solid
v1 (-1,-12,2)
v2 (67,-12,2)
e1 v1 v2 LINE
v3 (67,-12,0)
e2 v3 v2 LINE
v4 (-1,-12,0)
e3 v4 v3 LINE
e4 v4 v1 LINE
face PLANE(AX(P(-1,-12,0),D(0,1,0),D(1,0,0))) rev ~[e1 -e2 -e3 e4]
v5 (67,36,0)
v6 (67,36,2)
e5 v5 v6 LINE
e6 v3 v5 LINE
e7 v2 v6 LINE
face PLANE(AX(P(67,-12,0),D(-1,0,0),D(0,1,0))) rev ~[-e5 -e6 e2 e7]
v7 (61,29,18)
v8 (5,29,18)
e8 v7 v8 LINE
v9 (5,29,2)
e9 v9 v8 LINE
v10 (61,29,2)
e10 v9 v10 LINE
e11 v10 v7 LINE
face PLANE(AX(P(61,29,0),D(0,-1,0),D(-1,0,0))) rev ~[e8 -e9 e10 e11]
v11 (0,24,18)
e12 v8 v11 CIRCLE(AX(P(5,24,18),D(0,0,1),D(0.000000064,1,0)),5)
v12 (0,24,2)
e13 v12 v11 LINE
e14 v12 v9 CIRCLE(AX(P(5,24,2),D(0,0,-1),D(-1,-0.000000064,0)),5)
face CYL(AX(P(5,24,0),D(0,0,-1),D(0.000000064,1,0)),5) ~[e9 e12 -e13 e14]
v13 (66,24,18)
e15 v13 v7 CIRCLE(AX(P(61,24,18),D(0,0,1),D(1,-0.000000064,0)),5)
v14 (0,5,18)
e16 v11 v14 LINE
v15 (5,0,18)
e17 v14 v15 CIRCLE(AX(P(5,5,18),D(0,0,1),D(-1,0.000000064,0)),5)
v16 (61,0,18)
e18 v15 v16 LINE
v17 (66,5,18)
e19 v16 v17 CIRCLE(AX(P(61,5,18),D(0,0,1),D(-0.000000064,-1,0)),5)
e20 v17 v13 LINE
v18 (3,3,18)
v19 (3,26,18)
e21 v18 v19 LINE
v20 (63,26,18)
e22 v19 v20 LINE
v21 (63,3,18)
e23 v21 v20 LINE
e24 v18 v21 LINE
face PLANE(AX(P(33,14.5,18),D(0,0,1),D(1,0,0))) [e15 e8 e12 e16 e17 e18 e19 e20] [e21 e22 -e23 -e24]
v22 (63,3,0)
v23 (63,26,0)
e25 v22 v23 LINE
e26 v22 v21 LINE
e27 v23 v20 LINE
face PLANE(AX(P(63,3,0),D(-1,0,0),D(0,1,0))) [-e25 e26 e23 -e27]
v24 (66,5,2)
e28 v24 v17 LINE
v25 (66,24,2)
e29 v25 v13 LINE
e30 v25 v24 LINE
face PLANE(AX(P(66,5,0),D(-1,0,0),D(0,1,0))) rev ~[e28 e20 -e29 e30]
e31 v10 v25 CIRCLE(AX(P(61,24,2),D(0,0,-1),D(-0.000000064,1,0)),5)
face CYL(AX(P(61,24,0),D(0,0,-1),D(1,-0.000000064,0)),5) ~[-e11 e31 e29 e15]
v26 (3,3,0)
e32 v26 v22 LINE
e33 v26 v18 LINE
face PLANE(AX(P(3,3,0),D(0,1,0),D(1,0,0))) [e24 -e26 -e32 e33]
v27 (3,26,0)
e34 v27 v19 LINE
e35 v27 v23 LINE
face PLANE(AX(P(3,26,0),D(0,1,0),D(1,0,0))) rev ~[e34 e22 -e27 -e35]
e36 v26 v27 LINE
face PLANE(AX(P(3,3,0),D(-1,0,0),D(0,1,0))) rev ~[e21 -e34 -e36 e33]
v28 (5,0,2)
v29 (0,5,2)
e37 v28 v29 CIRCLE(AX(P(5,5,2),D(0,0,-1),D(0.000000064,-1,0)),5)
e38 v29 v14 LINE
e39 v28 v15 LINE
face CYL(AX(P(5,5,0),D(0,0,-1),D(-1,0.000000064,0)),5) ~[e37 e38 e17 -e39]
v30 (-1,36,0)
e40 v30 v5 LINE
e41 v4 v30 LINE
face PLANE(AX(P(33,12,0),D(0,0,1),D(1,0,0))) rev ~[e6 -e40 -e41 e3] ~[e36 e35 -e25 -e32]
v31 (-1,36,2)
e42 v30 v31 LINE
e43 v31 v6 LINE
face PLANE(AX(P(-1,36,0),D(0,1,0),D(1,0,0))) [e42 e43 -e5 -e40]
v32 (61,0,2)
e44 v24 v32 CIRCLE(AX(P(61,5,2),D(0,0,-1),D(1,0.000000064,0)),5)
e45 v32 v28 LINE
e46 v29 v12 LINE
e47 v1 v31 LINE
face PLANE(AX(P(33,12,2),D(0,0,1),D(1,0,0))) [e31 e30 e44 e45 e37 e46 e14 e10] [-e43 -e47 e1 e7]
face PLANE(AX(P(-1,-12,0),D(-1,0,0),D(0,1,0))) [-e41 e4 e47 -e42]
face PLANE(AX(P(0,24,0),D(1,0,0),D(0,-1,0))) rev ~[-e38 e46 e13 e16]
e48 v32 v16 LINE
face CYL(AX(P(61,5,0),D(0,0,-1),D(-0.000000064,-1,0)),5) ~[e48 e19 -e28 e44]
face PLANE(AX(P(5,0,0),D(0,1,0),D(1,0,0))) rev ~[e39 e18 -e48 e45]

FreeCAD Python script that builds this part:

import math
import FreeCAD as App
import Part
import Sketcher

doc = App.newDocument("Part")
body = doc.addObject("PartDesign::Body", "Body")

# Sketch on XY plane
sketch1 = body.newObject("Sketcher::SketchObject", "Sketch")
sketch1.AttachmentSupport = (doc.getObject("XY_Plane"), [""])
sketch1.MapMode = "FlatFace"
sketch1.addGeometry(Part.LineSegment(App.Vector(-1, 36, 0), App.Vector(-1, -12, 0)), False)
sketch1.addGeometry(Part.LineSegment(App.Vector(-1, -12, 0), App.Vector(67, -12, 0)), False)
sketch1.addGeometry(Part.LineSegment(App.Vector(67, -12, 0), App.Vector(67, 36, 0)), False)
sketch1.addGeometry(Part.LineSegment(App.Vector(67, 36, 0), App.Vector(-1, 36, 0)), False)
sketch1.addGeometry(Part.ArcOfCircle(Part.Circle(App.Vector(61, 5, 0), App.Vector(0, 0, 1), 5), math.radians(-90), math.radians(0)), False)
sketch1.addGeometry(Part.LineSegment(App.Vector(61, 0, 0), App.Vector(5, 0, 0)), False)
sketch1.addGeometry(Part.ArcOfCircle(Part.Circle(App.Vector(5, 5, 0), App.Vector(0, 0, 1), 5), math.radians(180), math.radians(270)), False)
sketch1.addGeometry(Part.LineSegment(App.Vector(0, 5, 0), App.Vector(0, 24, 0)), False)
sketch1.addGeometry(Part.ArcOfCircle(Part.Circle(App.Vector(5, 24, 0), App.Vector(0, 0, 1), 5), math.radians(90), math.radians(180)), False)
sketch1.addGeometry(Part.LineSegment(App.Vector(5, 29, 0), App.Vector(61, 29, 0)), False)
sketch1.addGeometry(Part.ArcOfCircle(Part.Circle(App.Vector(61, 24, 0), App.Vector(0, 0, 1), 5), math.radians(0), math.radians(90)), False)
sketch1.addGeometry(Part.LineSegment(App.Vector(66, 24, 0), App.Vector(66, 5, 0)), False)
sketch1.addConstraint(Sketcher.Constraint("Coincident", 0, 2, 1, 1))
sketch1.addConstraint(Sketcher.Constraint("Coincident", 1, 2, 2, 1))
sketch1.addConstraint(Sketcher.Constraint("Coincident", 2, 2, 3, 1))
sketch1.addConstraint(Sketcher.Constraint("Coincident", 3, 2, 0, 1))
sketch1.addConstraint(Sketcher.Constraint("Tangent", 4, 1, 5, 1))
sketch1.addConstraint(Sketcher.Constraint("Tangent", 5, 2, 6, 2))
sketch1.addConstraint(Sketcher.Constraint("Tangent", 6, 1, 7, 1))
sketch1.addConstraint(Sketcher.Constraint("Tangent", 7, 2, 8, 2))
sketch1.addConstraint(Sketcher.Constraint("Tangent", 8, 1, 9, 1))
sketch1.addConstraint(Sketcher.Constraint("Tangent", 9, 2, 10, 2))
sketch1.addConstraint(Sketcher.Constraint("Tangent", 10, 1, 11, 1))
sketch1.addConstraint(Sketcher.Constraint("Tangent", 11, 2, 4, 2))
sketch1.addConstraint(Sketcher.Constraint("Vertical", 0))
sketch1.addConstraint(Sketcher.Constraint("Horizontal", 1))
sketch1.addConstraint(Sketcher.Constraint("Vertical", 2))
sketch1.addConstraint(Sketcher.Constraint("Horizontal", 3))
sketch1.addConstraint(Sketcher.Constraint("Horizontal", 5))
sketch1.addConstraint(Sketcher.Constraint("Vertical", 7))
sketch1.addConstraint(Sketcher.Constraint("Horizontal", 9))
sketch1.addConstraint(Sketcher.Constraint("Vertical", 11))
sketch1.addConstraint(Sketcher.Constraint("Equal", 4, 6))
sketch1.addConstraint(Sketcher.Constraint("Equal", 6, 8))
sketch1.addConstraint(Sketcher.Constraint("Equal", 8, 10))
sketch1.addConstraint(Sketcher.Constraint("PointOnObject", 4, 1, -1))
sketch1.addConstraint(Sketcher.Constraint("PointOnObject", 6, 1, -2))
sketch1.addConstraint(Sketcher.Constraint("Radius", 4, 5.0))
sketch1.addConstraint(Sketcher.Constraint("DistanceX", 1, 1, 1, 2, 68.0))
sketch1.addConstraint(Sketcher.Constraint("DistanceX", 5, 2, 5, 1, 56.0))
sketch1.addConstraint(Sketcher.Constraint("DistanceY", 0, 2, 0, 1, 48.0))
sketch1.addConstraint(Sketcher.Constraint("DistanceY", 7, 1, 7, 2, 19.0))
sketch1.addConstraint(Sketcher.Constraint("DistanceX", 0, 2, -1, 1, 1.0))
sketch1.addConstraint(Sketcher.Constraint("DistanceY", 0, 2, -1, 1, 12.0))
pad1 = body.newObject("PartDesign::Pad", "Pad")
pad1.Profile = sketch1
pad1.Length = 2

# Sketch on XY plane
sketch2 = body.newObject("Sketcher::SketchObject", "Sketch001")
sketch2.AttachmentSupport = (doc.getObject("XY_Plane"), [""])
sketch2.MapMode = "FlatFace"
sketch2.addGeometry(Part.ArcOfCircle(Part.Circle(App.Vector(5, 5, 0), App.Vector(0, 0, 1), 5), math.radians(180), math.radians(270)), False)
sketch2.addGeometry(Part.LineSegment(App.Vector(5, 0, 0), App.Vector(61, 0, 0)), False)
sketch2.addGeometry(Part.ArcOfCircle(Part.Circle(App.Vector(61, 5, 0), App.Vector(0, 0, 1), 5), math.radians(-90), math.radians(0)), False)
sketch2.addGeometry(Part.LineSegment(App.Vector(66, 5, 0), App.Vector(66, 24, 0)), False)
sketch2.addGeometry(Part.ArcOfCircle(Part.Circle(App.Vector(61, 24, 0), App.Vector(0, 0, 1), 5), math.radians(0), math.radians(90)), False)
sketch2.addGeometry(Part.LineSegment(App.Vector(61, 29, 0), App.Vector(5, 29, 0)), False)
sketch2.addGeometry(Part.ArcOfCircle(Part.Circle(App.Vector(5, 24, 0), App.Vector(0, 0, 1), 5), math.radians(90), math.radians(180)), False)
sketch2.addGeometry(Part.LineSegment(App.Vector(0, 24, 0), App.Vector(0, 5, 0)), False)
sketch2.addGeometry(Part.LineSegment(App.Vector(63, 3, 0), App.Vector(3, 3, 0)), False)
sketch2.addGeometry(Part.LineSegment(App.Vector(3, 3, 0), App.Vector(3, 26, 0)), False)
sketch2.addGeometry(Part.LineSegment(App.Vector(3, 26, 0), App.Vector(63, 26, 0)), False)
sketch2.addGeometry(Part.LineSegment(App.Vector(63, 26, 0), App.Vector(63, 3, 0)), False)
sketch2.addConstraint(Sketcher.Constraint("Tangent", 0, 2, 1, 1))
sketch2.addConstraint(Sketcher.Constraint("Tangent", 1, 2, 2, 1))
sketch2.addConstraint(Sketcher.Constraint("Tangent", 2, 2, 3, 1))
sketch2.addConstraint(Sketcher.Constraint("Tangent", 3, 2, 4, 1))
sketch2.addConstraint(Sketcher.Constraint("Tangent", 4, 2, 5, 1))
sketch2.addConstraint(Sketcher.Constraint("Tangent", 5, 2, 6, 1))
sketch2.addConstraint(Sketcher.Constraint("Tangent", 6, 2, 7, 1))
sketch2.addConstraint(Sketcher.Constraint("Tangent", 7, 2, 0, 1))
sketch2.addConstraint(Sketcher.Constraint("Coincident", 8, 2, 9, 1))
sketch2.addConstraint(Sketcher.Constraint("Coincident", 9, 2, 10, 1))
sketch2.addConstraint(Sketcher.Constraint("Coincident", 10, 2, 11, 1))
sketch2.addConstraint(Sketcher.Constraint("Coincident", 11, 2, 8, 1))
sketch2.addConstraint(Sketcher.Constraint("Horizontal", 1))
sketch2.addConstraint(Sketcher.Constraint("Vertical", 3))
sketch2.addConstraint(Sketcher.Constraint("Horizontal", 5))
sketch2.addConstraint(Sketcher.Constraint("Vertical", 7))
sketch2.addConstraint(Sketcher.Constraint("Horizontal", 8))
sketch2.addConstraint(Sketcher.Constraint("Vertical", 9))
sketch2.addConstraint(Sketcher.Constraint("Horizontal", 10))
sketch2.addConstraint(Sketcher.Constraint("Vertical", 11))
sketch2.addConstraint(Sketcher.Constraint("Equal", 0, 2))
sketch2.addConstraint(Sketcher.Constraint("Equal", 2, 4))
sketch2.addConstraint(Sketcher.Constraint("Equal", 4, 6))
sketch2.addConstraint(Sketcher.Constraint("PointOnObject", 0, 2, -1))
sketch2.addConstraint(Sketcher.Constraint("PointOnObject", 6, 2, -2))
sketch2.addConstraint(Sketcher.Constraint("Radius", 0, 5.0))
sketch2.addConstraint(Sketcher.Constraint("DistanceX", 1, 1, 1, 2, 56.0))
sketch2.addConstraint(Sketcher.Constraint("DistanceX", 8, 2, 8, 1, 60.0))
sketch2.addConstraint(Sketcher.Constraint("DistanceY", 3, 1, 3, 2, 19.0))
sketch2.addConstraint(Sketcher.Constraint("DistanceY", 9, 1, 9, 2, 23.0))
sketch2.addConstraint(Sketcher.Constraint("DistanceX", -1, 1, 8, 2, 3.0))
sketch2.addConstraint(Sketcher.Constraint("DistanceY", -1, 1, 8, 2, 3.0))
pad2 = body.newObject("PartDesign::Pad", "Pad001")
pad2.Profile = sketch2
pad2.Length = 18

doc.recompute()
